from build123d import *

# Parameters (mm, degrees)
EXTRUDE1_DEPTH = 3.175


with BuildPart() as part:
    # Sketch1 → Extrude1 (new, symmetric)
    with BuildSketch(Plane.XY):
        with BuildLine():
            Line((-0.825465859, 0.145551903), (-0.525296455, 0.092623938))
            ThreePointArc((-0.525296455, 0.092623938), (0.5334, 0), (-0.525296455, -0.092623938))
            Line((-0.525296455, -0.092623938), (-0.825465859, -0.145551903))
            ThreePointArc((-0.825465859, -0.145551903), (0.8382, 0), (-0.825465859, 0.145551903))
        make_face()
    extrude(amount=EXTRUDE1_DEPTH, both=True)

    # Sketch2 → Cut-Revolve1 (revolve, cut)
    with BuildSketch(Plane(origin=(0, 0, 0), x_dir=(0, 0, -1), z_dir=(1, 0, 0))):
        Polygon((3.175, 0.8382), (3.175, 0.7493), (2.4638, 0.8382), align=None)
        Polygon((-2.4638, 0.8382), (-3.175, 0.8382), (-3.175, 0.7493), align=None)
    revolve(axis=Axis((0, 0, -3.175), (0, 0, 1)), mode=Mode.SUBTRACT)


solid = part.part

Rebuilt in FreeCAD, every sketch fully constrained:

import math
import FreeCAD as App
import Part
import Sketcher
from FreeCAD import Vector
Q = App.Units.Quantity

doc = App.newDocument("Part")
body = doc.addObject("PartDesign::Body", "Body")

# Sketch on XY plane
sketch1 = body.newObject("Sketcher::SketchObject", "Sketch")
sketch1.AttachmentSupport = (doc.getObject("XY_Plane"), [""])
sketch1.MapMode = "FlatFace"
sketch1.addGeometry([
    Part.LineSegment(Vector(-0.83, 0.15, 0), Vector(-0.53, 0.09, 0)),
    Part.ArcOfCircle(Part.Circle(Vector(0, 0, 0), Vector(0, 0, 1), 0.53), math.radians(-170), math.radians(170)),
    Part.LineSegment(Vector(-0.53, -0.09, 0), Vector(-0.83, -0.15, 0)),
    Part.ArcOfCircle(Part.Circle(Vector(0, 0, 0), Vector(0, 0, 1), 0.84), math.radians(-170), math.radians(170)),
], False)
sketch1.addConstraint([
    Sketcher.Constraint("Coincident", 0, 2, 1, 2),
    Sketcher.Constraint("Coincident", 1, 1, 2, 1),
    Sketcher.Constraint("Coincident", 2, 2, 3, 1),
    Sketcher.Constraint("Coincident", 3, 2, 0, 1),
    Sketcher.Constraint("Coincident", 1, 3, -1, 1),
    Sketcher.Constraint("Coincident", 3, 3, -1, 1),
    Sketcher.Constraint("Vertical", 0, 2, 1, 1),
    Sketcher.Constraint("Vertical", 2, 2, 3, 2),
    Sketcher.Constraint("Angle", 0, Q("-10 deg")),
    Sketcher.Constraint("Radius", 1, Q("0.021 in")),
    Sketcher.Constraint("Radius", 3, Q("0.033 in")),
    Sketcher.Constraint("DistanceY", 2, 2, -1, 1, Q("0.145552 mm")),
])
pad1 = body.newObject("PartDesign::Pad", "Pad")
pad1.Profile = sketch1
pad1.Length = Q("0.25 in")
pad1.Midplane = True

# Sketch on YZ plane
sketch2 = body.newObject("Sketcher::SketchObject", "Sketch001")
sketch2.AttachmentSupport = (doc.getObject("YZ_Plane"), [""])
sketch2.MapMode = "FlatFace"
sketch2.addGeometry([
    Part.LineSegment(Vector(0.75, -3.17, 0), Vector(0.84, -3.17, 0)),  # 0
    Part.LineSegment(Vector(0.84, -3.17, 0), Vector(0.84, -2.46, 0)),  # 1
    Part.LineSegment(Vector(0.84, -2.46, 0), Vector(0.75, -3.17, 0)),  # 2
    Part.LineSegment(Vector(0.84, 2.46, 0), Vector(0.84, 3.17, 0)),  # 3
    Part.LineSegment(Vector(0.84, 3.17, 0), Vector(0.75, 3.17, 0)),  # 4
    Part.LineSegment(Vector(0.75, 3.17, 0), Vector(0.84, 2.46, 0)),  # 5
], False)
sketch2.addConstraint([
    Sketcher.Constraint("Coincident", 0, 2, 1, 1),
    Sketcher.Constraint("Coincident", 1, 2, 2, 1),
    Sketcher.Constraint("Coincident", 2, 2, 0, 1),
    Sketcher.Constraint("Coincident", 3, 2, 4, 1),
    Sketcher.Constraint("Coincident", 4, 2, 5, 1),
    Sketcher.Constraint("Coincident", 5, 2, 3, 1),
    Sketcher.Constraint("Horizontal", 0),
    Sketcher.Constraint("Vertical", 1),
    Sketcher.Constraint("Vertical", 3),
    Sketcher.Constraint("Horizontal", 4),
    Sketcher.Constraint("Symmetric", 0, 2, 3, 2, -1),
    Sketcher.Constraint("Vertical", 2, 2, 4, 2),
    Sketcher.Constraint("Equal", 1, 3),
    Sketcher.Constraint("DistanceY", 1, 1, 1, 2, Q("0.028 in")),
    Sketcher.Constraint("DistanceY", 0, 2, 3, 2, Q("0.25 in")),
    Sketcher.Constraint("DistanceX", 0, 1, 0, 2, Q("0.0035 in")),
    Sketcher.Constraint("DistanceX", -1, 1, 0, 2, Q("0.033 in")),
])
groove = body.newObject("PartDesign::Groove", "Groove")
groove.Profile = sketch2
groove.ReferenceAxis = (sketch2, ["V_Axis"])
groove.Angle = 360

doc.recompute()
